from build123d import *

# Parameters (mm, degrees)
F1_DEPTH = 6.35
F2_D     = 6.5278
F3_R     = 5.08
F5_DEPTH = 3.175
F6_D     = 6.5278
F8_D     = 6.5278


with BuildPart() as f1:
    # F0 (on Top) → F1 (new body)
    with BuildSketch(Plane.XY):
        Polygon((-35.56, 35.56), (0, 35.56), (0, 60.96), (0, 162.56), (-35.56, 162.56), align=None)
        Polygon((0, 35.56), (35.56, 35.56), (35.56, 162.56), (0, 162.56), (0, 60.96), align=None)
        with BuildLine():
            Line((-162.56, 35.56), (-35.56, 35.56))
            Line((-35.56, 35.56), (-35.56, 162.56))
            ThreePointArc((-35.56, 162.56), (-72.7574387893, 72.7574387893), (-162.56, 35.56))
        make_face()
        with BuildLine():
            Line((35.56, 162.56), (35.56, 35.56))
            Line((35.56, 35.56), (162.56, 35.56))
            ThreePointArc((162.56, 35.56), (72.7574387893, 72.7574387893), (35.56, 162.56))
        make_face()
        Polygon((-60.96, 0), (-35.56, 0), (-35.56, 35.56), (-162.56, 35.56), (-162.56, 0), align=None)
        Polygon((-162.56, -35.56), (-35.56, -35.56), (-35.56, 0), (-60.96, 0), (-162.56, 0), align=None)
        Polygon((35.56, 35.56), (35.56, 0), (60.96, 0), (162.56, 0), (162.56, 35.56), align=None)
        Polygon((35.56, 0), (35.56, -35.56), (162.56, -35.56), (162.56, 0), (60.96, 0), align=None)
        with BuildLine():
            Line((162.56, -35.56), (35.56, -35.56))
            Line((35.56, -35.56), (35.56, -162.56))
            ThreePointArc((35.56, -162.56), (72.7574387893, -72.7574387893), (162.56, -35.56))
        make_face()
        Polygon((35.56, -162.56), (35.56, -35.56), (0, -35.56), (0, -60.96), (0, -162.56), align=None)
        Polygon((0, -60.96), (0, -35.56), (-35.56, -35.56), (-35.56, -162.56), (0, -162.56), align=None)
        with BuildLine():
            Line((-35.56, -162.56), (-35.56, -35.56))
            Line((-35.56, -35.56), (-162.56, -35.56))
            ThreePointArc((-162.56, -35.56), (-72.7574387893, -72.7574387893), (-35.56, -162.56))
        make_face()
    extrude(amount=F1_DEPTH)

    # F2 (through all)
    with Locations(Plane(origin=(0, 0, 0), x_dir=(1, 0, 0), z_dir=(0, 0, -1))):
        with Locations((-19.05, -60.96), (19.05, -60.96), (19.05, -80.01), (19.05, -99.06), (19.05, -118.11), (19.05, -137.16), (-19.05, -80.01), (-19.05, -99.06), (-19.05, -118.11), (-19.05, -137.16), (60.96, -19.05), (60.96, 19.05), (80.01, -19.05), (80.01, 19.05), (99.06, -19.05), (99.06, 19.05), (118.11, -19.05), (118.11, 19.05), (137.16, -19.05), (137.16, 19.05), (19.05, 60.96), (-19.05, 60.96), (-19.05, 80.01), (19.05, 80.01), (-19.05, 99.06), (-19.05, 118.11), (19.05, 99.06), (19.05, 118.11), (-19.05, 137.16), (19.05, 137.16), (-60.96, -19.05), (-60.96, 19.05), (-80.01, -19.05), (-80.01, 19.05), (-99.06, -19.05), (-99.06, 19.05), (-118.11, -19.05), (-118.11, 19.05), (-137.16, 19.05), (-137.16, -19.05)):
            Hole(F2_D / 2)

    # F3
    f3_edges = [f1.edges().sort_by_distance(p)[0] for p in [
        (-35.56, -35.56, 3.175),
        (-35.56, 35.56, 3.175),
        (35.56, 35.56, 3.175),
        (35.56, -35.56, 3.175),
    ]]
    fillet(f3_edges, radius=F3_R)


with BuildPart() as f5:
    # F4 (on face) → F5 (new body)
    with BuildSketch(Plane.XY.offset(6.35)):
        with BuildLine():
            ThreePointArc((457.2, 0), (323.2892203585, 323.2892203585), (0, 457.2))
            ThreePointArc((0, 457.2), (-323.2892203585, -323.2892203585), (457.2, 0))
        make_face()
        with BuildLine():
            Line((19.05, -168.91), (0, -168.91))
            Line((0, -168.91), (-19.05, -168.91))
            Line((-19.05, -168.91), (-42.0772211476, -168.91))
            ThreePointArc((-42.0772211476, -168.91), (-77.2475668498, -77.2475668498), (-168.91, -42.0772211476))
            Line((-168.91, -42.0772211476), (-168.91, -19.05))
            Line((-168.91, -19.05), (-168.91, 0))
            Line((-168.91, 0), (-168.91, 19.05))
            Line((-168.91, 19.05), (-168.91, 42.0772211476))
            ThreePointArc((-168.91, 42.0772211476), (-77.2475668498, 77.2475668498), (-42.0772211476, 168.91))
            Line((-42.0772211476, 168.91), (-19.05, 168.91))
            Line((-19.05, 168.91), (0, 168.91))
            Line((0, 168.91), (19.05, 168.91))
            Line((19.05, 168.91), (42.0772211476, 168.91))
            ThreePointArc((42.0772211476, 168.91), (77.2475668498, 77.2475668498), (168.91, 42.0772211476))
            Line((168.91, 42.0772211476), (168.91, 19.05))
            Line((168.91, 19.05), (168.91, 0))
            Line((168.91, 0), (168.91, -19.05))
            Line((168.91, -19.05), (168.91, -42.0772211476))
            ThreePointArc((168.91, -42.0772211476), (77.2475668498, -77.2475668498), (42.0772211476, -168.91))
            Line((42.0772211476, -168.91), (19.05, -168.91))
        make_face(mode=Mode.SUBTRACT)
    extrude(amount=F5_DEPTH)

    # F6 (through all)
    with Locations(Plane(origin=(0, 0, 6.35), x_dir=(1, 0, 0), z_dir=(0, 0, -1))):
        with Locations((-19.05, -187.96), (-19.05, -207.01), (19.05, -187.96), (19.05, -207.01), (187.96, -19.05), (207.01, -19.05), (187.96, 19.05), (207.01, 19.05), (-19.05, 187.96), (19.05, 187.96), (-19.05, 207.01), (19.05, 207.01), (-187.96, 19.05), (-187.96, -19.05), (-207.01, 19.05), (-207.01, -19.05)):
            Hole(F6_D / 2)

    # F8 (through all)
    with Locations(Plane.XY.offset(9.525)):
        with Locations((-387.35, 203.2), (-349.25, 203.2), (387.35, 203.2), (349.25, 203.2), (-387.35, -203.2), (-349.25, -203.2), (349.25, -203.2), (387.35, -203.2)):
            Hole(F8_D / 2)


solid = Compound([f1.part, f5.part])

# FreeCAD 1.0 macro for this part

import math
import FreeCAD as App
import Part
import Sketcher
Q = App.Units.Quantity


def edges_at(feature, points):
    """Names of the edges that pass closest to the given points."""
    edges = feature.Shape.Edges
    near = lambda p: min(range(len(edges)), key=lambda i: edges[i].distToShape(Part.Vertex(*p))[0])
    return sorted({f"Edge{near(p) + 1}" for p in points})


def add_polygon(sketch, points):
    """Adds a closed chain of lines whose ends are joined by coincident constraints."""
    first, n = sketch.GeometryCount, len(points)
    for a, b in zip(points, points[1:] + points[:1]):
        sketch.addGeometry(Part.LineSegment(App.Vector(*a, 0), App.Vector(*b, 0)), False)
    for i in range(n):
        sketch.addConstraint(Sketcher.Constraint("Coincident", first + i, 2, first + (i + 1) % n, 1))

doc = App.newDocument("Part")
body = doc.addObject("PartDesign::Body", "Body")

# Sketch on XY plane
sketch1 = doc.addObject("Sketcher::SketchObject", "Sketch")
body.addObject(sketch1)
sketch1.AttachmentSupport = (doc.XY_Plane, [""])
sketch1.MapMode = "FlatFace"
sketch1.addGeometry(Part.LineSegment(App.Vector(-162.56, 35.56, 0), App.Vector(-162.56, -35.56, 0)), False)  # 0
sketch1.addGeometry(Part.ArcOfCircle(Part.Circle(App.Vector(-162.56, -162.56, 0), App.Vector(0, 0, 1), 127), math.radians(0), math.radians(90)), False)  # 1
sketch1.addGeometry(Part.LineSegment(App.Vector(-35.56, -162.56, 0), App.Vector(35.56, -162.56, 0)), False)  # 2
sketch1.addGeometry(Part.ArcOfCircle(Part.Circle(App.Vector(162.56, -162.56, 0), App.Vector(0, 0, 1), 127), math.radians(90), math.radians(180)), False)  # 3
sketch1.addGeometry(Part.LineSegment(App.Vector(162.56, -35.56, 0), App.Vector(162.56, 35.56, 0)), False)  # 4
sketch1.addGeometry(Part.ArcOfCircle(Part.Circle(App.Vector(162.56, 162.56, 0), App.Vector(0, 0, 1), 127), math.radians(180), math.radians(270)), False)  # 5
sketch1.addGeometry(Part.LineSegment(App.Vector(35.56, 162.56, 0), App.Vector(-35.56, 162.56, 0)), False)  # 6
sketch1.addGeometry(Part.ArcOfCircle(Part.Circle(App.Vector(-162.56, 162.56, 0), App.Vector(0, 0, 1), 127), math.radians(-90), math.radians(0)), False)  # 7
add_polygon(sketch1, [(35.56, -35.56), (-35.56, -35.56), (-35.56, 35.56), (35.56, 35.56)])  # lines 8-11
sketch1.addConstraint([
    Sketcher.Constraint("Coincident", 0, 2, 1, 2),
    Sketcher.Constraint("Coincident", 1, 1, 2, 1),
    Sketcher.Constraint("Coincident", 2, 2, 3, 2),
    Sketcher.Constraint("Coincident", 3, 1, 4, 1),
    Sketcher.Constraint("Coincident", 4, 2, 5, 2),
    Sketcher.Constraint("Coincident", 5, 1, 6, 1),
    Sketcher.Constraint("Coincident", 6, 2, 7, 2),
    Sketcher.Constraint("Coincident", 7, 1, 0, 1),
    Sketcher.Constraint("Vertical", 0),
    Sketcher.Constraint("Horizontal", 2),
    Sketcher.Constraint("Vertical", 4),
    Sketcher.Constraint("Horizontal", 6),
    Sketcher.Constraint("Horizontal", 8),
    Sketcher.Constraint("Vertical", 9),
    Sketcher.Constraint("Horizontal", 10),
    Sketcher.Constraint("Vertical", 11),
    Sketcher.Constraint("Equal", 1, 3),
    Sketcher.Constraint("Equal", 3, 5),
    Sketcher.Constraint("Equal", 5, 7),
    Sketcher.Constraint("Symmetric", 1, 3, 5, 3, -1, 1),
    Sketcher.Constraint("Symmetric", 3, 3, 7, 3, -1, 1),
    Sketcher.Constraint("Symmetric", 8, 2, 10, 2, -1, 1),
    Sketcher.Constraint("Symmetric", 1, 3, 3, 3, -2),
    Sketcher.Constraint("Horizontal", 3, 3, 1, 1),
    Sketcher.Constraint("Horizontal", 7, 3, 5, 1),
    Sketcher.Constraint("Horizontal", 3, 1, 8, 2),
    Sketcher.Constraint("Vertical", 7, 3, 0, 2),
    Sketcher.Constraint("Vertical", 5, 3, 3, 1),
    Sketcher.Constraint("Vertical", 6, 2, 8, 2),
    Sketcher.Constraint("Equal", 10, 0),
    Sketcher.Constraint("Radius", 1, Q("5 in")),
    Sketcher.Constraint("DistanceX", 2, 1, 2, 2, Q("2.8 in")),
])
pad1 = doc.addObject("PartDesign::Pad", "Pad")
body.addObject(pad1)
pad1.Profile = sketch1
pad1.Length = Q("0.25 in")

# Sketch on XY plane
sketch2 = doc.addObject("Sketcher::SketchObject", "Sketch001")
body.addObject(sketch2)
sketch2.AttachmentSupport = (doc.XY_Plane, [""])
sketch2.MapMode = "FlatFace"
sketch2.addGeometry([
    Part.Circle(App.Vector(-19.05, 60.96, 0), App.Vector(0, 0, 1), 3.2639),  # 0
    Part.Circle(App.Vector(19.05, 60.96, 0), App.Vector(0, 0, 1), 3.2639),  # 1
    Part.Circle(App.Vector(19.05, 80.01, 0), App.Vector(0, 0, 1), 3.2639),  # 2
    Part.Circle(App.Vector(19.05, 99.06, 0), App.Vector(0, 0, 1), 3.2639),  # 3
    Part.Circle(App.Vector(19.05, 118.11, 0), App.Vector(0, 0, 1), 3.2639),  # 4
    Part.Circle(App.Vector(19.05, 137.16, 0), App.Vector(0, 0, 1), 3.2639),  # 5
    Part.Circle(App.Vector(-19.05, 80.01, 0), App.Vector(0, 0, 1), 3.2639),  # 6
    Part.Circle(App.Vector(-19.05, 99.06, 0), App.Vector(0, 0, 1), 3.2639),  # 7
    Part.Circle(App.Vector(-19.05, 118.11, 0), App.Vector(0, 0, 1), 3.2639),  # 8
    Part.Circle(App.Vector(-19.05, 137.16, 0), App.Vector(0, 0, 1), 3.2639),  # 9
    Part.Circle(App.Vector(60.96, 19.05, 0), App.Vector(0, 0, 1), 3.2639),  # 10
    Part.Circle(App.Vector(60.96, -19.05, 0), App.Vector(0, 0, 1), 3.2639),  # 11
    Part.Circle(App.Vector(80.01, 19.05, 0), App.Vector(0, 0, 1), 3.2639),  # 12
    Part.Circle(App.Vector(80.01, -19.05, 0), App.Vector(0, 0, 1), 3.2639),  # 13
    Part.Circle(App.Vector(99.06, 19.05, 0), App.Vector(0, 0, 1), 3.2639),  # 14
    Part.Circle(App.Vector(99.06, -19.05, 0), App.Vector(0, 0, 1), 3.2639),  # 15
    Part.Circle(App.Vector(118.11, 19.05, 0), App.Vector(0, 0, 1), 3.2639),  # 16
    Part.Circle(App.Vector(118.11, -19.05, 0), App.Vector(0, 0, 1), 3.2639),  # 17
    Part.Circle(App.Vector(137.16, 19.05, 0), App.Vector(0, 0, 1), 3.2639),  # 18
    Part.Circle(App.Vector(137.16, -19.05, 0), App.Vector(0, 0, 1), 3.2639),  # 19
    Part.Circle(App.Vector(19.05, -60.96, 0), App.Vector(0, 0, 1), 3.2639),  # 20
    Part.Circle(App.Vector(-19.05, -60.96, 0), App.Vector(0, 0, 1), 3.2639),  # 21
    Part.Circle(App.Vector(-19.05, -80.01, 0), App.Vector(0, 0, 1), 3.2639),  # 22
    Part.Circle(App.Vector(19.05, -80.01, 0), App.Vector(0, 0, 1), 3.2639),  # 23
    Part.Circle(App.Vector(-19.05, -99.06, 0), App.Vector(0, 0, 1), 3.2639),  # 24
    Part.Circle(App.Vector(-19.05, -118.11, 0), App.Vector(0, 0, 1), 3.2639),  # 25
    Part.Circle(App.Vector(19.05, -99.06, 0), App.Vector(0, 0, 1), 3.2639),  # 26
    Part.Circle(App.Vector(19.05, -118.11, 0), App.Vector(0, 0, 1), 3.2639),  # 27
    Part.Circle(App.Vector(-19.05, -137.16, 0), App.Vector(0, 0, 1), 3.2639),  # 28
    Part.Circle(App.Vector(19.05, -137.16, 0), App.Vector(0, 0, 1), 3.2639),  # 29
    Part.Circle(App.Vector(-60.96, 19.05, 0), App.Vector(0, 0, 1), 3.2639),  # 30
    Part.Circle(App.Vector(-60.96, -19.05, 0), App.Vector(0, 0, 1), 3.2639),  # 31
    Part.Circle(App.Vector(-80.01, 19.05, 0), App.Vector(0, 0, 1), 3.2639),  # 32
    Part.Circle(App.Vector(-80.01, -19.05, 0), App.Vector(0, 0, 1), 3.2639),  # 33
    Part.Circle(App.Vector(-99.06, 19.05, 0), App.Vector(0, 0, 1), 3.2639),  # 34
    Part.Circle(App.Vector(-99.06, -19.05, 0), App.Vector(0, 0, 1), 3.2639),  # 35
    Part.Circle(App.Vector(-118.11, 19.05, 0), App.Vector(0, 0, 1), 3.2639),  # 36
    Part.Circle(App.Vector(-118.11, -19.05, 0), App.Vector(0, 0, 1), 3.2639),  # 37
    Part.Circle(App.Vector(-137.16, -19.05, 0), App.Vector(0, 0, 1), 3.2639),  # 38
    Part.Circle(App.Vector(-137.16, 19.05, 0), App.Vector(0, 0, 1), 3.2639),  # 39
], False)
sketch2.addConstraint([
    Sketcher.Constraint("Equal", 0, 1),
    Sketcher.Constraint("Equal", 1, 2),
    Sketcher.Constraint("Equal", 2, 3),
    Sketcher.Constraint("Equal", 3, 4),
    Sketcher.Constraint("Equal", 4, 5),
    Sketcher.Constraint("Equal", 5, 6),
    Sketcher.Constraint("Equal", 6, 7),
    Sketcher.Constraint("Equal", 7, 8),
    Sketcher.Constraint("Equal", 8, 9),
    Sketcher.Constraint("Equal", 9, 10),
    Sketcher.Constraint("Equal", 10, 11),
    Sketcher.Constraint("Equal", 11, 12),
    Sketcher.Constraint("Equal", 12, 13),
    Sketcher.Constraint("Equal", 13, 14),
    Sketcher.Constraint("Equal", 14, 15),
    Sketcher.Constraint("Equal", 15, 16),
    Sketcher.Constraint("Equal", 16, 17),
    Sketcher.Constraint("Equal", 17, 18),
    Sketcher.Constraint("Equal", 18, 19),
    Sketcher.Constraint("Equal", 19, 20),
    Sketcher.Constraint("Equal", 20, 21),
    Sketcher.Constraint("Equal", 21, 22),
    Sketcher.Constraint("Equal", 22, 23),
    Sketcher.Constraint("Equal", 23, 24),
    Sketcher.Constraint("Equal", 24, 25),
    Sketcher.Constraint("Equal", 25, 26),
    Sketcher.Constraint("Equal", 26, 27),
    Sketcher.Constraint("Equal", 27, 28),
    Sketcher.Constraint("Equal", 28, 29),
    Sketcher.Constraint("Equal", 29, 30),
    Sketcher.Constraint("Equal", 30, 31),
    Sketcher.Constraint("Equal", 31, 32),
    Sketcher.Constraint("Equal", 32, 33),
    Sketcher.Constraint("Equal", 33, 34),
    Sketcher.Constraint("Equal", 34, 35),
    Sketcher.Constraint("Equal", 35, 36),
    Sketcher.Constraint("Equal", 36, 37),
    Sketcher.Constraint("Equal", 37, 38),
    Sketcher.Constraint("Equal", 38, 39),
    Sketcher.Constraint("Symmetric", 0, 3, 20, 3, -1, 1),
    Sketcher.Constraint("Symmetric", 1, 3, 21, 3, -1, 1),
    Sketcher.Constraint("Symmetric", 2, 3, 22, 3, -1, 1),
    Sketcher.Constraint("Symmetric", 6, 3, 23, 3, -1, 1),
    Sketcher.Constraint("Symmetric", 3, 3, 24, 3, -1, 1),
    Sketcher.Constraint("Symmetric", 4, 3, 25, 3, -1, 1),
    Sketcher.Constraint("Symmetric", 7, 3, 26, 3, -1, 1),
    Sketcher.Constraint("Symmetric", 8, 3, 27, 3, -1, 1),
    Sketcher.Constraint("Symmetric", 5, 3, 28, 3, -1, 1),
    Sketcher.Constraint("Symmetric", 9, 3, 29, 3, -1, 1),
    Sketcher.Constraint("Symmetric", 11, 3, 30, 3, -1, 1),
    Sketcher.Constraint("Symmetric", 10, 3, 31, 3, -1, 1),
    Sketcher.Constraint("Symmetric", 13, 3, 32, 3, -1, 1),
    Sketcher.Constraint("Symmetric", 12, 3, 33, 3, -1, 1),
    Sketcher.Constraint("Symmetric", 15, 3, 34, 3, -1, 1),
    Sketcher.Constraint("Symmetric", 14, 3, 35, 3, -1, 1),
    Sketcher.Constraint("Symmetric", 17, 3, 36, 3, -1, 1),
    Sketcher.Constraint("Symmetric", 16, 3, 37, 3, -1, 1),
    Sketcher.Constraint("Symmetric", 18, 3, 38, 3, -1, 1),
    Sketcher.Constraint("Symmetric", 19, 3, 39, 3, -1, 1),
    Sketcher.Constraint("Symmetric", 0, 3, 1, 3, -2),
    Sketcher.Constraint("Symmetric", 2, 3, 6, 3, -2),
    Sketcher.Constraint("Symmetric", 3, 3, 7, 3, -2),
    Sketcher.Constraint("Symmetric", 4, 3, 8, 3, -2),
    Sketcher.Constraint("Symmetric", 5, 3, 9, 3, -2),
    Sketcher.Constraint("Symmetric", 10, 3, 30, 3, -2),
    Sketcher.Constraint("Symmetric", 12, 3, 32, 3, -2),
    Sketcher.Constraint("Symmetric", 14, 3, 34, 3, -2),
    Sketcher.Constraint("Symmetric", 16, 3, 36, 3, -2),
    Sketcher.Constraint("Symmetric", 19, 3, 38, 3, -2),
    Sketcher.Constraint("Horizontal", 10, 3, 12, 3),
    Sketcher.Constraint("Horizontal", 12, 3, 14, 3),
    Sketcher.Constraint("Horizontal", 14, 3, 16, 3),
    Sketcher.Constraint("Horizontal", 16, 3, 18, 3),
    Sketcher.Constraint("Vertical", 1, 3, 2, 3),
    Sketcher.Constraint("Vertical", 2, 3, 3, 3),
    Sketcher.Constraint("Vertical", 3, 3, 4, 3),
    Sketcher.Constraint("Vertical", 4, 3, 5, 3),
    Sketcher.Constraint("Diameter", 0, Q("0.257 in")),
    Sketcher.Constraint("DistanceY", 1, 3, 5, 3, Q("3 in")),
    Sketcher.Constraint("DistanceY", -1, 1, 0, 3, Q("2.4 in")),
    Sketcher.Constraint("DistanceY", -1, 1, 3, 3, Q("3.9 in")),
    Sketcher.Constraint("DistanceX", -1, 1, 10, 3, Q("2.4 in")),
    Sketcher.Constraint("DistanceX", -1, 1, 14, 3, Q("3.9 in")),
    Sketcher.Constraint("DistanceX", -1, 1, 18, 3, Q("5.4 in")),
    Sketcher.Constraint("DistanceX", 0, 3, 1, 3, Q("1.5 in")),
    Sketcher.Constraint("DistanceY", 2, 3, 4, 3, Q("1.5 in")),
    Sketcher.Constraint("DistanceY", 10, 3, 2, 3, Q("2.4 in")),
    Sketcher.Constraint("DistanceY", 11, 3, 10, 3, Q("1.5 in")),
    Sketcher.Constraint("DistanceX", 1, 3, 12, 3, Q("2.4 in")),
    Sketcher.Constraint("DistanceX", 12, 3, 16, 3, Q("1.5 in")),
])
doc.recompute()
hole = doc.addObject("PartDesign::Hole", "Hole")
body.addObject(hole)
hole.Profile = sketch2
hole.ThreadType = "None"
hole.Diameter = Q("0.257 in")
hole.DepthType = "ThroughAll"
hole.Reversed = True
doc.recompute()

fillet = doc.addObject("PartDesign::Fillet", "Fillet")
body.addObject(fillet)
fillet.Base = (hole, edges_at(hole, [
    (-35.56, -35.56, 3.175),
    (-35.56, 35.56, 3.175),
    (35.56, 35.56, 3.175),
    (35.56, -35.56, 3.175),
]))
fillet.Radius = Q("0.2 in")
body2 = doc.addObject("PartDesign::Body", "Body001")

# Sketch on XY plane
sketch3 = doc.addObject("Sketcher::SketchObject", "Sketch002")
body2.addObject(sketch3)
sketch3.AttachmentSupport = (doc.getObject("XY_Plane001"), [""])
sketch3.MapMode = "FlatFace"
sketch3.AttachmentOffset = App.Placement(App.Vector(0, 0, 0.25 * 25.4), App.Rotation())
sketch3.addGeometry([
    Part.Circle(App.Vector(0, 0, 0), App.Vector(0, 0, 1), 457.2),  # 0
    Part.LineSegment(App.Vector(42.077221, -168.91, 0), App.Vector(-42.077221, -168.91, 0)),  # 1
    Part.ArcOfCircle(Part.Circle(App.Vector(-162.56, -162.56, 0), App.Vector(0, 0, 1), 120.65), math.radians(-3.016961), math.radians(93.016961)),  # 2
    Part.LineSegment(App.Vector(-168.91, -42.077221, 0), App.Vector(-168.91, 42.077221, 0)),  # 3
    Part.ArcOfCircle(Part.Circle(App.Vector(-162.56, 162.56, 0), App.Vector(0, 0, 1), 120.65), math.radians(-93.016961), math.radians(3.016961)),  # 4
    Part.LineSegment(App.Vector(-42.077221, 168.91, 0), App.Vector(42.077221, 168.91, 0)),  # 5
    Part.ArcOfCircle(Part.Circle(App.Vector(162.56, 162.56, 0), App.Vector(0, 0, 1), 120.65), math.radians(176.983039), math.radians(273.016961)),  # 6
    Part.LineSegment(App.Vector(168.91, 42.077221, 0), App.Vector(168.91, -42.077221, 0)),  # 7
    Part.ArcOfCircle(Part.Circle(App.Vector(162.56, -162.56, 0), App.Vector(0, 0, 1), 120.65), math.radians(86.983039), math.radians(183.016961)),  # 8
], False)
sketch3.addConstraint([
    Sketcher.Constraint("Coincident", 1, 2, 2, 1),
    Sketcher.Constraint("Coincident", 2, 2, 3, 1),
    Sketcher.Constraint("Coincident", 3, 2, 4, 1),
    Sketcher.Constraint("Coincident", 4, 2, 5, 1),
    Sketcher.Constraint("Coincident", 5, 2, 6, 1),
    Sketcher.Constraint("Coincident", 6, 2, 7, 1),
    Sketcher.Constraint("Coincident", 7, 2, 8, 1),
    Sketcher.Constraint("Coincident", 8, 2, 1, 1),
    Sketcher.Constraint("Horizontal", 1),
    Sketcher.Constraint("Vertical", 3),
    Sketcher.Constraint("Horizontal", 5),
    Sketcher.Constraint("Vertical", 7),
    Sketcher.Constraint("Coincident", 0, 3, -1, 1),
    Sketcher.Constraint("Equal", 2, 4),
    Sketcher.Constraint("Equal", 4, 6),
    Sketcher.Constraint("Equal", 6, 8),
    Sketcher.Constraint("Symmetric", 2, 3, 6, 3, -1, 1),
    Sketcher.Constraint("Symmetric", 4, 3, 8, 3, -1, 1),
    Sketcher.Constraint("Symmetric", 4, 3, 6, 3, -2),
    Sketcher.Constraint("Horizontal", 3, 2, 6, 2),
    Sketcher.Constraint("Vertical", 1, 2, 4, 2),
    Sketcher.Constraint("Equal", 5, 3),
    Sketcher.Constraint("Diameter", 0, Q("36 in")),
    Sketcher.Constraint("Radius", 2, Q("4.75 in")),
    Sketcher.Constraint("DistanceX", 2, 3, -1, 1, Q("6.4 in")),
    Sketcher.Constraint("DistanceY", 2, 3, -1, 1, Q("6.4 in")),
    Sketcher.Constraint("DistanceY", 1, 2, -1, 1, Q("6.65 in")),
])
pad2 = doc.addObject("PartDesign::Pad", "Pad001")
body2.addObject(pad2)
pad2.Profile = sketch3
pad2.Length = Q("0.125 in")

# Sketch on XY plane
sketch4 = doc.addObject("Sketcher::SketchObject", "Sketch003")
body2.addObject(sketch4)
sketch4.AttachmentSupport = (doc.getObject("XY_Plane001"), [""])
sketch4.MapMode = "FlatFace"
sketch4.AttachmentOffset = App.Placement(App.Vector(0, 0, 0.25 * 25.4), App.Rotation())
sketch4.addGeometry([
    Part.Circle(App.Vector(-19.05, 187.96, 0), App.Vector(0, 0, 1), 3.2639),  # 0
    Part.Circle(App.Vector(-19.05, 207.01, 0), App.Vector(0, 0, 1), 3.2639),  # 1
    Part.Circle(App.Vector(19.05, 187.96, 0), App.Vector(0, 0, 1), 3.2639),  # 2
    Part.Circle(App.Vector(19.05, 207.01, 0), App.Vector(0, 0, 1), 3.2639),  # 3
    Part.Circle(App.Vector(187.96, 19.05, 0), App.Vector(0, 0, 1), 3.2639),  # 4
    Part.Circle(App.Vector(207.01, 19.05, 0), App.Vector(0, 0, 1), 3.2639),  # 5
    Part.Circle(App.Vector(187.96, -19.05, 0), App.Vector(0, 0, 1), 3.2639),  # 6
    Part.Circle(App.Vector(207.01, -19.05, 0), App.Vector(0, 0, 1), 3.2639),  # 7
    Part.Circle(App.Vector(-19.05, -187.96, 0), App.Vector(0, 0, 1), 3.2639),  # 8
    Part.Circle(App.Vector(19.05, -187.96, 0), App.Vector(0, 0, 1), 3.2639),  # 9
    Part.Circle(App.Vector(-19.05, -207.01, 0), App.Vector(0, 0, 1), 3.2639),  # 10
    Part.Circle(App.Vector(19.05, -207.01, 0), App.Vector(0, 0, 1), 3.2639),  # 11
    Part.Circle(App.Vector(-187.96, -19.05, 0), App.Vector(0, 0, 1), 3.2639),  # 12
    Part.Circle(App.Vector(-187.96, 19.05, 0), App.Vector(0, 0, 1), 3.2639),  # 13
    Part.Circle(App.Vector(-207.01, -19.05, 0), App.Vector(0, 0, 1), 3.2639),  # 14
    Part.Circle(App.Vector(-207.01, 19.05, 0), App.Vector(0, 0, 1), 3.2639),  # 15
], False)
sketch4.addConstraint([
    Sketcher.Constraint("Equal", 0, 1),
    Sketcher.Constraint("Equal", 1, 2),
    Sketcher.Constraint("Equal", 2, 3),
    Sketcher.Constraint("Equal", 3, 4),
    Sketcher.Constraint("Equal", 4, 5),
    Sketcher.Constraint("Equal", 5, 6),
    Sketcher.Constraint("Equal", 6, 7),
    Sketcher.Constraint("Equal", 7, 8),
    Sketcher.Constraint("Equal", 8, 9),
    Sketcher.Constraint("Equal", 9, 10),
    Sketcher.Constraint("Equal", 10, 11),
    Sketcher.Constraint("Equal", 11, 12),
    Sketcher.Constraint("Equal", 12, 13),
    Sketcher.Constraint("Equal", 13, 14),
    Sketcher.Constraint("Equal", 14, 15),
    Sketcher.Constraint("Symmetric", 2, 3, 8, 3, -1, 1),
    Sketcher.Constraint("Symmetric", 0, 3, 9, 3, -1, 1),
    Sketcher.Constraint("Symmetric", 3, 3, 10, 3, -1, 1),
    Sketcher.Constraint("Symmetric", 1, 3, 11, 3, -1, 1),
    Sketcher.Constraint("Symmetric", 4, 3, 12, 3, -1, 1),
    Sketcher.Constraint("Symmetric", 6, 3, 13, 3, -1, 1),
    Sketcher.Constraint("Symmetric", 5, 3, 14, 3, -1, 1),
    Sketcher.Constraint("Symmetric", 7, 3, 15, 3, -1, 1),
    Sketcher.Constraint("Symmetric", 0, 3, 2, 3, -2),
    Sketcher.Constraint("Symmetric", 1, 3, 3, 3, -2),
    Sketcher.Constraint("Symmetric", 6, 3, 12, 3, -2),
    Sketcher.Constraint("Symmetric", 7, 3, 14, 3, -2),
    Sketcher.Constraint("Horizontal", 4, 3, 5, 3),
    Sketcher.Constraint("Vertical", 0, 3, 1, 3),
    Sketcher.Constraint("Diameter", 0, Q("0.257 in")),
    Sketcher.Constraint("DistanceY", -1, 1, 0, 3, Q("7.4 in")),
    Sketcher.Constraint("DistanceX", -1, 1, 4, 3, Q("7.4 in")),
    Sketcher.Constraint("DistanceX", 0, 3, 2, 3, Q("1.5 in")),
    Sketcher.Constraint("DistanceY", 4, 3, 3, 3, Q("7.4 in")),
    Sketcher.Constraint("DistanceX", 2, 3, 5, 3, Q("7.4 in")),
    Sketcher.Constraint("DistanceY", 6, 3, 4, 3, Q("1.5 in")),
])
doc.recompute()
hole2 = doc.addObject("PartDesign::Hole", "Hole001")
body2.addObject(hole2)
hole2.Profile = sketch4
hole2.ThreadType = "None"
hole2.Diameter = Q("0.257 in")
hole2.DepthType = "ThroughAll"
hole2.Reversed = True

# Sketch on XY plane
sketch5 = doc.addObject("Sketcher::SketchObject", "Sketch004")
body2.addObject(sketch5)
sketch5.AttachmentSupport = (doc.getObject("XY_Plane001"), [""])
sketch5.MapMode = "FlatFace"
sketch5.AttachmentOffset = App.Placement(App.Vector(0, 0, 0.375 * 25.4), App.Rotation())
sketch5.addGeometry([
    Part.Circle(App.Vector(-387.35, 203.2, 0), App.Vector(0, 0, 1), 3.2639),  # 0
    Part.Circle(App.Vector(-349.25, 203.2, 0), App.Vector(0, 0, 1), 3.2639),  # 1
    Part.Circle(App.Vector(387.35, 203.2, 0), App.Vector(0, 0, 1), 3.2639),  # 2
    Part.Circle(App.Vector(349.25, 203.2, 0), App.Vector(0, 0, 1), 3.2639),  # 3
    Part.Circle(App.Vector(-387.35, -203.2, 0), App.Vector(0, 0, 1), 3.2639),  # 4
    Part.Circle(App.Vector(-349.25, -203.2, 0), App.Vector(0, 0, 1), 3.2639),  # 5
    Part.Circle(App.Vector(349.25, -203.2, 0), App.Vector(0, 0, 1), 3.2639),  # 6
    Part.Circle(App.Vector(387.35, -203.2, 0), App.Vector(0, 0, 1), 3.2639),  # 7
], False)
sketch5.addConstraint([
    Sketcher.Constraint("Equal", 0, 1),
    Sketcher.Constraint("Equal", 1, 2),
    Sketcher.Constraint("Equal", 2, 3),
    Sketcher.Constraint("Equal", 3, 4),
    Sketcher.Constraint("Equal", 4, 5),
    Sketcher.Constraint("Equal", 5, 6),
    Sketcher.Constraint("Equal", 6, 7),
    Sketcher.Constraint("Symmetric", 2, 3, 4, 3, -1, 1),
    Sketcher.Constraint("Symmetric", 3, 3, 5, 3, -1, 1),
    Sketcher.Constraint("Symmetric", 1, 3, 6, 3, -1, 1),
    Sketcher.Constraint("Symmetric", 0, 3, 7, 3, -1, 1),
    Sketcher.Constraint("Symmetric", 0, 3, 2, 3, -2),
    Sketcher.Constraint("Symmetric", 1, 3, 3, 3, -2),
    Sketcher.Constraint("Horizontal", 0, 3, 1, 3),
    Sketcher.Constraint("Diameter", 0, Q("0.257 in")),
    Sketcher.Constraint("DistanceY", -1, 1, 0, 3, Q("8 in")),
    Sketcher.Constraint("DistanceX", 1, 3, 2, 3, Q("29 in")),
    Sketcher.Constraint("DistanceX", 0, 3, 1, 3, Q("1.5 in")),
])
doc.recompute()
hole3 = doc.addObject("PartDesign::Hole", "Hole002")
body2.addObject(hole3)
hole3.Profile = sketch5
hole3.ThreadType = "None"
hole3.Diameter = Q("0.257 in")
hole3.DepthType = "ThroughAll"

doc.recompute()
